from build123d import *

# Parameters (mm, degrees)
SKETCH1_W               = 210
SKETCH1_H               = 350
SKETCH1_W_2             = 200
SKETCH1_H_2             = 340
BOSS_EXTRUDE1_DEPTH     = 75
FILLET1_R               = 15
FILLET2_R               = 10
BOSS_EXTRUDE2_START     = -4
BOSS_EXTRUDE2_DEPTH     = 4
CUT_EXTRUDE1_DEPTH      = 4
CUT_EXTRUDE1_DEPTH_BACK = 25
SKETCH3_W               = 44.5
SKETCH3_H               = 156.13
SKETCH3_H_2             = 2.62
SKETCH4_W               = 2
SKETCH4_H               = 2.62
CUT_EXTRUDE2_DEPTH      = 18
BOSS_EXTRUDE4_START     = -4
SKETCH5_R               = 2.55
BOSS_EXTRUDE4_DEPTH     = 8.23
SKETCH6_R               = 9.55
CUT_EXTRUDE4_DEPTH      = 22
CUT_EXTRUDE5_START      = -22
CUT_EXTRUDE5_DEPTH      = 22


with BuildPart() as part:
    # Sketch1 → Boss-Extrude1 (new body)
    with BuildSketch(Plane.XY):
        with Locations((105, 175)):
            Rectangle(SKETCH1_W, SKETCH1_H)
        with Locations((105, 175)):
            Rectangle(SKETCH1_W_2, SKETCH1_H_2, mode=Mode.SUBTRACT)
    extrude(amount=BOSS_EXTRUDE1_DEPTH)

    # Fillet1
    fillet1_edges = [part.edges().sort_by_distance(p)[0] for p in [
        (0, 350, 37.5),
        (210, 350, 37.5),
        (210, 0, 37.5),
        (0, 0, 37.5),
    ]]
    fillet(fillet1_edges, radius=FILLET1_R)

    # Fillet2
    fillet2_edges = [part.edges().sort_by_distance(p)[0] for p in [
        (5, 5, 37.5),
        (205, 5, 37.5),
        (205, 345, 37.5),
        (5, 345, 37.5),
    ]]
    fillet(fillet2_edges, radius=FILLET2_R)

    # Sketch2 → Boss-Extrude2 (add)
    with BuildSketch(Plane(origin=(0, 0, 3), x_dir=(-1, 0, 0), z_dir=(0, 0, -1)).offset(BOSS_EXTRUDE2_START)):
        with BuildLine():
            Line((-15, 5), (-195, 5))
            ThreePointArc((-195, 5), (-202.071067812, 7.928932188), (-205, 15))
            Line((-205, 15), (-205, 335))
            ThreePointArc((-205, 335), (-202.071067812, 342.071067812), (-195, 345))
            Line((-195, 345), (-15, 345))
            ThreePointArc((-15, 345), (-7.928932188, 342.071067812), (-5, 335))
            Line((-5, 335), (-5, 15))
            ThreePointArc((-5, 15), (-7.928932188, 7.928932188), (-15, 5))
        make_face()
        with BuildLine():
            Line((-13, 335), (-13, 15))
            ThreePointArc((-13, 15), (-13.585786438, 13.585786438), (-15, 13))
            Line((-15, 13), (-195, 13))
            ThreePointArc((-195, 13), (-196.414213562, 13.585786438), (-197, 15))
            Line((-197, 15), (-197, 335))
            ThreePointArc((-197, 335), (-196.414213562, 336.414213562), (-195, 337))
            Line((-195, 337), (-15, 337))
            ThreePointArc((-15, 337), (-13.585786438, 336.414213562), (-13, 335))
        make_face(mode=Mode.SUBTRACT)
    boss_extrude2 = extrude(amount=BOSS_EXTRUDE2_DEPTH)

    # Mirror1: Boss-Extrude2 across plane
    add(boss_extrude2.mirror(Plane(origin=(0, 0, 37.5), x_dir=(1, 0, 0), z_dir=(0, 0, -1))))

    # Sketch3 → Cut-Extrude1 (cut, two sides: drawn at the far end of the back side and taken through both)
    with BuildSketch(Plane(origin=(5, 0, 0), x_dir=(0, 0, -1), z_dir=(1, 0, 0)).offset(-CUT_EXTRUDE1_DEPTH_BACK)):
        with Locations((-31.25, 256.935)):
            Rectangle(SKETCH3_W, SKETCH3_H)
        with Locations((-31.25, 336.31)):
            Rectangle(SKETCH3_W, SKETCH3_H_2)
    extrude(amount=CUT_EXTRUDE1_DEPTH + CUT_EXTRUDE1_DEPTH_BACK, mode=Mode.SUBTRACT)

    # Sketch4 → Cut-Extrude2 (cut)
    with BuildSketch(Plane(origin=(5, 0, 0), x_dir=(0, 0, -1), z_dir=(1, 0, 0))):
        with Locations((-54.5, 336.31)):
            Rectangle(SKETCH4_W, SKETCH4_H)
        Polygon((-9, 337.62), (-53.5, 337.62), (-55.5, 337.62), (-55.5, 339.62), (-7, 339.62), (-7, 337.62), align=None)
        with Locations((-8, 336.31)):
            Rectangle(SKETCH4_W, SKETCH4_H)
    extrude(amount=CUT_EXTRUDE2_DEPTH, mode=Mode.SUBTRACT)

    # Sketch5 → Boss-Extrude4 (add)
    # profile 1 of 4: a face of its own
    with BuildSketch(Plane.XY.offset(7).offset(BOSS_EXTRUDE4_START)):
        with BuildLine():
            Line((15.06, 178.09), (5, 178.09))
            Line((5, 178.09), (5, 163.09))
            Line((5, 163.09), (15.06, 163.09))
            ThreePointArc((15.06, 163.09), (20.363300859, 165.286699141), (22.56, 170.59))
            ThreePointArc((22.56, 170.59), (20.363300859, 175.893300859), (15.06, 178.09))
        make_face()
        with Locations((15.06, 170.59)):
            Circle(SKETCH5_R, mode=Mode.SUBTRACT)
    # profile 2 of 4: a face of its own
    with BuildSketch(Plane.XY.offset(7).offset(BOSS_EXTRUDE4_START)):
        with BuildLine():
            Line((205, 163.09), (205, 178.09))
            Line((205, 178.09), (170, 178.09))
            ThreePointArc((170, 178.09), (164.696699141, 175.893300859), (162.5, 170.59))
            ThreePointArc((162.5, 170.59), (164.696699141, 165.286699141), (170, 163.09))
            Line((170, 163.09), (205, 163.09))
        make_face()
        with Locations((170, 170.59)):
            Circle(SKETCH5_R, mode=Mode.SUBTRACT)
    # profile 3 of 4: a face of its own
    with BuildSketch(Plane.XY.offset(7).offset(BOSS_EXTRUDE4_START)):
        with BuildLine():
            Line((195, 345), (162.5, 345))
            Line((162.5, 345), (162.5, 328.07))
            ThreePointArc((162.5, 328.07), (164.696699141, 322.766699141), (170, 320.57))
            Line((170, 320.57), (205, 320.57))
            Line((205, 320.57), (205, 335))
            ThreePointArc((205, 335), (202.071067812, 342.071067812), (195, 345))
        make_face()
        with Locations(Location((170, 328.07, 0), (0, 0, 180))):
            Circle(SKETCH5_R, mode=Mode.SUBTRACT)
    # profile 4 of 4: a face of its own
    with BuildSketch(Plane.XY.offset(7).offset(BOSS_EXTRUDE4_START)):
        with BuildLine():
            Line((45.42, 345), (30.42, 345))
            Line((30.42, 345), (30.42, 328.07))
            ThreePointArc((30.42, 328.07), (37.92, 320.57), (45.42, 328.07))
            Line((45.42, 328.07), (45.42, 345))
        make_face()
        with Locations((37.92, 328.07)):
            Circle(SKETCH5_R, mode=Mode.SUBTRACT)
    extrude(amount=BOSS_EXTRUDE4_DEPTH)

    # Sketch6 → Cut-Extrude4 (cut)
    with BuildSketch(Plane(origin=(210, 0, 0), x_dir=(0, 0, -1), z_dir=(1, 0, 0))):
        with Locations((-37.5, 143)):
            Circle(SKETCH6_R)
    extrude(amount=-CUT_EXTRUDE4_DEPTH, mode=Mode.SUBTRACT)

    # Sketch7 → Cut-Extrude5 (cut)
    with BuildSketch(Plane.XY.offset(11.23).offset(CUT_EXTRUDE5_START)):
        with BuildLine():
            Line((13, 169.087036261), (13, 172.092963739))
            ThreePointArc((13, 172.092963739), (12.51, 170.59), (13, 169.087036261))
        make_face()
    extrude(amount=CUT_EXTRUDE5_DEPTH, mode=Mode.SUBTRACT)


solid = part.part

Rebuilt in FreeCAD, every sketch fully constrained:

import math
import FreeCAD as App
import Part
import Sketcher
from FreeCAD import Vector
Q = App.Units.Quantity


def edges_at(feature, points):
    """Names of the edges that pass closest to the given points."""
    edges = feature.Shape.Edges
    near = lambda p: min(range(len(edges)), key=lambda i: edges[i].distToShape(Part.Vertex(*p))[0])
    return sorted({f"Edge{near(p) + 1}" for p in points})


def add_polygon(sketch, points):
    """Adds a closed chain of lines whose ends are joined by coincident constraints."""
    first, n = sketch.GeometryCount, len(points)
    for a, b in zip(points, points[1:] + points[:1]):
        sketch.addGeometry(Part.LineSegment(App.Vector(*a, 0), App.Vector(*b, 0)), False)
    for i in range(n):
        sketch.addConstraint(Sketcher.Constraint("Coincident", first + i, 2, first + (i + 1) % n, 1))

doc = App.newDocument("Part")
params = doc.addObject("Spreadsheet::Sheet", "Params")
for row, (alias, value) in enumerate([
    ("sketch1_width", "210 mm"),
    ("sketch1_width2", "200 mm"),
    ("sketch1_height", "350 mm"),
    ("sketch1_height2", "340 mm"),
    ("pad1_length", "75 mm"),
    ("fillet_radius", "15 mm"),
    ("fillet2_radius", "10 mm"),
    ("sketch2_radius", "10 mm"),
    ("sketch2_radius2", "2 mm"),
    ("sketch2_width", "180 mm"),
    ("sketch2_height", "320 mm"),
    ("pad2_length", "4 mm"),
    ("sketch3_height", "44.5 mm"),
    ("sketch3_width", "158.75 mm"),
    ("pocket1_length", "4 mm"),
    ("pocket1_length2", "25 mm"),
    ("sketch4_height", "2 mm"),
    ("sketch4_height2", "44.5 mm"),
    ("sketch4_width", "2.62 mm"),
    ("pocket2_length", "18 mm"),
    ("sketch5_radius", "10 mm"),
    ("sketch5_diameter", "5.1 mm"),
    ("sketch5_radius2", "7.5 mm"),
    ("sketch5_width", "35 mm"),
    ("sketch5_width2", "10.06 mm"),
    ("pad3_length", "8.23 mm"),
    ("sketch6_diameter", "19.1 mm"),
    ("pocket3_length", "22 mm"),
    ("sketch7_radius", "2.55 mm"),
    ("pocket4_length", "22 mm"),
], start=1):
    params.set(f"A{row}", alias)
    params.set(f"B{row}", "=" + value)
    params.setAlias(f"B{row}", alias)

body = doc.addObject("PartDesign::Body", "Body")

# Sketch on XY plane
sketch1 = body.newObject("Sketcher::SketchObject", "Sketch")
sketch1.AttachmentSupport = (doc.getObject("XY_Plane"), [""])
sketch1.MapMode = "FlatFace"
add_polygon(sketch1, [(0, 350), (0, 0), (210, 0), (210, 350)])  # lines 0-3
add_polygon(sketch1, [(205, 5), (5, 5), (5, 345), (205, 345)])  # lines 4-7
sketch1.addConstraint([
    Sketcher.Constraint("Vertical", 0),
    Sketcher.Constraint("Horizontal", 1),
    Sketcher.Constraint("Vertical", 2),
    Sketcher.Constraint("Horizontal", 3),
    Sketcher.Constraint("Horizontal", 4),
    Sketcher.Constraint("Vertical", 5),
    Sketcher.Constraint("Horizontal", 6),
    Sketcher.Constraint("Vertical", 7),
    Sketcher.Constraint("Coincident", 0, 2, -1, 1),
    Sketcher.Constraint("DistanceX", 1, 1, 1, 2, Q("210 mm")),
    Sketcher.Constraint("DistanceX", 4, 2, 4, 1, Q("200 mm")),
    Sketcher.Constraint("DistanceY", 0, 2, 0, 1, Q("350 mm")),
    Sketcher.Constraint("DistanceY", 5, 1, 5, 2, Q("340 mm")),
    Sketcher.Constraint("DistanceX", -1, 1, 4, 2, Q("5 mm")),
    Sketcher.Constraint("DistanceY", -1, 1, 4, 2, Q("5 mm")),
])
sketch1.setExpression("Constraints[17]", "Params.sketch1_width")
sketch1.setExpression("Constraints[18]", "Params.sketch1_width2")
sketch1.setExpression("Constraints[19]", "Params.sketch1_height")
sketch1.setExpression("Constraints[20]", "Params.sketch1_height2")
pad1 = body.newObject("PartDesign::Pad", "Pad")
pad1.Profile = sketch1
pad1.setExpression("Length", "Params.pad1_length")
doc.recompute()

fillet = body.newObject("PartDesign::Fillet", "Fillet")
fillet.Base = (pad1, edges_at(pad1, [
    (0, 350, 37.5),
    (210, 350, 37.5),
    (210, 0, 37.5),
    (0, 0, 37.5),
]))
fillet.setExpression("Radius", "Params.fillet_radius")
doc.recompute()

fillet2 = body.newObject("PartDesign::Fillet", "Fillet001")
fillet2.Base = (fillet, edges_at(fillet, [
    (5, 5, 37.5),
    (205, 5, 37.5),
    (205, 345, 37.5),
    (5, 345, 37.5),
]))
fillet2.setExpression("Radius", "Params.fillet2_radius")

# Sketch on XY plane
sketch2 = body.newObject("Sketcher::SketchObject", "Sketch001")
sketch2.AttachmentSupport = (doc.getObject("XY_Plane"), [""])
sketch2.MapMode = "FlatFace"
sketch2.AttachmentOffset = App.Placement(Vector(0, 0, 7), App.Rotation())
sketch2.addGeometry([
    Part.LineSegment(Vector(195, 5, 0), Vector(15, 5, 0)),  # 0
    Part.ArcOfCircle(Part.Circle(Vector(15, 15, 0), Vector(0, 0, 1), 10), math.radians(180), math.radians(270)),  # 1
    Part.LineSegment(Vector(5, 15, 0), Vector(5, 335, 0)),  # 2
    Part.ArcOfCircle(Part.Circle(Vector(15, 335, 0), Vector(0, 0, 1), 10), math.radians(90), math.radians(180)),  # 3
    Part.LineSegment(Vector(15, 345, 0), Vector(195, 345, 0)),  # 4
    Part.ArcOfCircle(Part.Circle(Vector(195, 335, 0), Vector(0, 0, 1), 10), math.radians(0), math.radians(90)),  # 5
    Part.LineSegment(Vector(205, 335, 0), Vector(205, 15, 0)),  # 6
    Part.ArcOfCircle(Part.Circle(Vector(195, 15, 0), Vector(0, 0, 1), 10), math.radians(-90), math.radians(0)),  # 7
    Part.LineSegment(Vector(13, 335, 0), Vector(13, 15, 0)),  # 8
    Part.ArcOfCircle(Part.Circle(Vector(15, 15, 0), Vector(0, 0, 1), 2), math.radians(-180), math.radians(-90)),  # 9
    Part.LineSegment(Vector(15, 13, 0), Vector(195, 13, 0)),  # 10
    Part.ArcOfCircle(Part.Circle(Vector(195, 15, 0), Vector(0, 0, 1), 2), math.radians(-90), math.radians(0)),  # 11
    Part.LineSegment(Vector(197, 15, 0), Vector(197, 335, 0)),  # 12
    Part.ArcOfCircle(Part.Circle(Vector(195, 335, 0), Vector(0, 0, 1), 2), math.radians(0), math.radians(90)),  # 13
    Part.LineSegment(Vector(195, 337, 0), Vector(15, 337, 0)),  # 14
    Part.ArcOfCircle(Part.Circle(Vector(15, 335, 0), Vector(0, 0, 1), 2), math.radians(90), math.radians(180)),  # 15
], False)
sketch2.addConstraint([
    Sketcher.Constraint("Tangent", 0, 2, 1, 2),
    Sketcher.Constraint("Tangent", 1, 1, 2, 1),
    Sketcher.Constraint("Tangent", 2, 2, 3, 2),
    Sketcher.Constraint("Tangent", 3, 1, 4, 1),
    Sketcher.Constraint("Tangent", 4, 2, 5, 2),
    Sketcher.Constraint("Tangent", 5, 1, 6, 1),
    Sketcher.Constraint("Tangent", 6, 2, 7, 2),
    Sketcher.Constraint("Tangent", 7, 1, 0, 1),
    Sketcher.Constraint("Tangent", 8, 2, 9, 1),
    Sketcher.Constraint("Tangent", 9, 2, 10, 1),
    Sketcher.Constraint("Tangent", 10, 2, 11, 1),
    Sketcher.Constraint("Tangent", 11, 2, 12, 1),
    Sketcher.Constraint("Tangent", 12, 2, 13, 1),
    Sketcher.Constraint("Tangent", 13, 2, 14, 1),
    Sketcher.Constraint("Tangent", 14, 2, 15, 1),
    Sketcher.Constraint("Tangent", 15, 2, 8, 1),
    Sketcher.Constraint("Horizontal", 0),
    Sketcher.Constraint("Vertical", 2),
    Sketcher.Constraint("Horizontal", 4),
    Sketcher.Constraint("Vertical", 6),
    Sketcher.Constraint("Vertical", 8),
    Sketcher.Constraint("Horizontal", 10),
    Sketcher.Constraint("Vertical", 12),
    Sketcher.Constraint("Horizontal", 14),
    Sketcher.Constraint("Coincident", 9, 3, 1, 3),
    Sketcher.Constraint("Coincident", 11, 3, 7, 3),
    Sketcher.Constraint("Coincident", 13, 3, 5, 3),
    Sketcher.Constraint("Equal", 1, 3),
    Sketcher.Constraint("Equal", 3, 5),
    Sketcher.Constraint("Equal", 5, 7),
    Sketcher.Constraint("Equal", 13, 15),
    Sketcher.Constraint("Radius", 1, Q("10 mm")),
    Sketcher.Constraint("Radius", 9, Q("2 mm")),
    Sketcher.Constraint("DistanceX", 0, 2, 0, 1, Q("180 mm")),
    Sketcher.Constraint("DistanceY", 2, 1, 2, 2, Q("320 mm")),
    Sketcher.Constraint("DistanceX", -1, 1, 1, 3, Q("15 mm")),
    Sketcher.Constraint("DistanceY", -1, 1, 1, 3, Q("15 mm")),
])
sketch2.setExpression("Constraints[31]", "Params.sketch2_radius")
sketch2.setExpression("Constraints[32]", "Params.sketch2_radius2")
sketch2.setExpression("Constraints[33]", "Params.sketch2_width")
sketch2.setExpression("Constraints[34]", "Params.sketch2_height")
pad2 = body.newObject("PartDesign::Pad", "Pad001")
pad2.Profile = sketch2
pad2.setExpression("Length", "Params.pad2_length")
pad2.Reversed = True
doc.recompute()

datumplane = body.newObject("PartDesign::Plane", "DatumPlane")
datumplane.AttachmentSupport = (doc.getObject("XY_Plane"), [""])
datumplane.MapMode = "FlatFace"
datumplane.AttachmentOffset = App.Placement(Vector(0, 0, 37.5), App.Rotation())
mirrored = body.newObject("PartDesign::Mirrored", "Mirrored")
mirrored.Originals = [pad2]
mirrored.MirrorPlane = (datumplane, [""])
body.Tip = mirrored

# Sketch on YZ plane
sketch3 = body.newObject("Sketcher::SketchObject", "Sketch002")
sketch3.AttachmentSupport = (doc.getObject("YZ_Plane"), [""])
sketch3.MapMode = "FlatFace"
sketch3.AttachmentOffset = App.Placement(Vector(0, 0, 5), App.Rotation())
add_polygon(sketch3, [(178.87, 53.5), (178.87, 9), (337.62, 9), (337.62, 53.5)])  # lines 0-3
sketch3.addConstraint([
    Sketcher.Constraint("Vertical", 0),
    Sketcher.Constraint("Horizontal", 1),
    Sketcher.Constraint("Vertical", 2),
    Sketcher.Constraint("Horizontal", 3),
    Sketcher.Constraint("DistanceY", 0, 2, 0, 1, Q("44.5 mm")),
    Sketcher.Constraint("DistanceY", -1, 1, 0, 2, Q("9 mm")),
    Sketcher.Constraint("DistanceX", 1, 1, 1, 2, Q("158.75 mm")),
    Sketcher.Constraint("DistanceX", -1, 1, 0, 2, Q("178.87 mm")),
])
sketch3.setExpression("Constraints[8]", "Params.sketch3_height")
sketch3.setExpression("Constraints[10]", "Params.sketch3_width")
pocket1 = body.newObject("PartDesign::Pocket", "Pocket")
pocket1.Profile = sketch3
pocket1.Type = "TwoLengths"
pocket1.setExpression("Length", "Params.pocket1_length")
pocket1.setExpression("Length2", "Params.pocket1_length2")
pocket1.Reversed = True

# Sketch on YZ plane
sketch4 = body.newObject("Sketcher::SketchObject", "Sketch003")
sketch4.AttachmentSupport = (doc.getObject("YZ_Plane"), [""])
sketch4.MapMode = "FlatFace"
sketch4.AttachmentOffset = App.Placement(Vector(0, 0, 5), App.Rotation())
add_polygon(sketch4, [(335, 55.5), (335, 53.5), (337.62, 53.5), (337.62, 9), (335, 9), (335, 7), (339.62, 7), (339.62, 55.5)])  # lines 0-7
sketch4.addConstraint([
    Sketcher.Constraint("Vertical", 0),
    Sketcher.Constraint("Horizontal", 1),
    Sketcher.Constraint("Vertical", 2),
    Sketcher.Constraint("Horizontal", 3),
    Sketcher.Constraint("Vertical", 4),
    Sketcher.Constraint("Horizontal", 5),
    Sketcher.Constraint("Vertical", 6),
    Sketcher.Constraint("Horizontal", 7),
    Sketcher.Constraint("Vertical", 0, 2, 3, 2),
    Sketcher.Constraint("Equal", 0, 4),
    Sketcher.Constraint("DistanceY", 0, 2, 0, 1, Q("2 mm")),
    Sketcher.Constraint("DistanceY", 2, 2, 2, 1, Q("44.5 mm")),
    Sketcher.Constraint("DistanceX", -1, 1, 0, 2, Q("335 mm")),
    Sketcher.Constraint("DistanceY", -1, 1, 2, 2, Q("9 mm")),
    Sketcher.Constraint("DistanceX", 2, 2, 5, 2, Q("2 mm")),
    Sketcher.Constraint("DistanceX", 1, 1, 1, 2, Q("2.62 mm")),
])
sketch4.setExpression("Constraints[18]", "Params.sketch4_height")
sketch4.setExpression("Constraints[19]", "Params.sketch4_height2")
sketch4.setExpression("Constraints[23]", "Params.sketch4_width")
pocket2 = body.newObject("PartDesign::Pocket", "Pocket001")
pocket2.Profile = sketch4
pocket2.setExpression("Length", "Params.pocket2_length")
pocket2.Reversed = True

# Sketch on XY plane
sketch5 = body.newObject("Sketcher::SketchObject", "Sketch004")
sketch5.AttachmentSupport = (doc.getObject("XY_Plane"), [""])
sketch5.MapMode = "FlatFace"
sketch5.AttachmentOffset = App.Placement(Vector(0, 0, 3), App.Rotation())
sketch5.addGeometry([
    Part.LineSegment(Vector(15.06, 178.09, 0), Vector(5, 178.09, 0)),  # 0
    Part.LineSegment(Vector(5, 178.09, 0), Vector(5, 163.09, 0)),  # 1
    Part.LineSegment(Vector(5, 163.09, 0), Vector(15.06, 163.09, 0)),  # 2
    Part.ArcOfCircle(Part.Circle(Vector(15.06, 170.59, 0), Vector(0, 0, 1), 7.5), math.radians(-90), math.radians(0)),  # 3
    Part.ArcOfCircle(Part.Circle(Vector(15.06, 170.59, 0), Vector(0, 0, 1), 7.5), math.radians(0), math.radians(90)),  # 4
    Part.Circle(Vector(15.06, 170.59, 0), Vector(0, 0, 1), 2.55),  # 5
    Part.LineSegment(Vector(205, 163.09, 0), Vector(205, 178.09, 0)),  # 6
    Part.LineSegment(Vector(205, 178.09, 0), Vector(170, 178.09, 0)),  # 7
    Part.ArcOfCircle(Part.Circle(Vector(170, 170.59, 0), Vector(0, 0, 1), 7.5), math.radians(90), math.radians(180)),  # 8
    Part.ArcOfCircle(Part.Circle(Vector(170, 170.59, 0), Vector(0, 0, 1), 7.5), math.radians(180), math.radians(270)),  # 9
    Part.LineSegment(Vector(170, 163.09, 0), Vector(205, 163.09, 0)),  # 10
    Part.Circle(Vector(170, 170.59, 0), Vector(0, 0, 1), 2.55),  # 11
    Part.LineSegment(Vector(195, 345, 0), Vector(162.5, 345, 0)),  # 12
    Part.LineSegment(Vector(162.5, 345, 0), Vector(162.5, 328.07, 0)),  # 13
    Part.ArcOfCircle(Part.Circle(Vector(170, 328.07, 0), Vector(0, 0, 1), 7.5), math.radians(180), math.radians(270)),  # 14
    Part.LineSegment(Vector(170, 320.57, 0), Vector(205, 320.57, 0)),  # 15
    Part.LineSegment(Vector(205, 320.57, 0), Vector(205, 335, 0)),  # 16
    Part.ArcOfCircle(Part.Circle(Vector(195, 335, 0), Vector(0, 0, 1), 10), math.radians(0), math.radians(90)),  # 17
    Part.Circle(Vector(170, 328.07, 0), Vector(0, 0, 1), 2.55),  # 18
    Part.LineSegment(Vector(45.42, 345, 0), Vector(30.42, 345, 0)),  # 19
    Part.LineSegment(Vector(30.42, 345, 0), Vector(30.42, 328.07, 0)),  # 20
    Part.ArcOfCircle(Part.Circle(Vector(37.92, 328.07, 0), Vector(0, 0, 1), 7.5), math.radians(180), math.radians(360)),  # 21
    Part.LineSegment(Vector(45.42, 328.07, 0), Vector(45.42, 345, 0)),  # 22
    Part.Circle(Vector(37.92, 328.07, 0), Vector(0, 0, 1), 2.55),  # 23
], False)
sketch5.addConstraint([
    Sketcher.Constraint("Coincident", 0, 2, 1, 1),
    Sketcher.Constraint("Coincident", 1, 2, 2, 1),
    Sketcher.Constraint("Tangent", 2, 2, 3, 1),
    Sketcher.Constraint("Tangent", 3, 2, 4, 1),
    Sketcher.Constraint("Tangent", 4, 2, 0, 1),
    Sketcher.Constraint("Coincident", 6, 2, 7, 1),
    Sketcher.Constraint("Tangent", 7, 2, 8, 1),
    Sketcher.Constraint("Tangent", 8, 2, 9, 1),
    Sketcher.Constraint("Tangent", 9, 2, 10, 1),
    Sketcher.Constraint("Coincident", 10, 2, 6, 1),
    Sketcher.Constraint("Coincident", 12, 2, 13, 1),
    Sketcher.Constraint("Tangent", 13, 2, 14, 1),
    Sketcher.Constraint("Tangent", 14, 2, 15, 1),
    Sketcher.Constraint("Coincident", 15, 2, 16, 1),
    Sketcher.Constraint("Tangent", 16, 2, 17, 1),
    Sketcher.Constraint("Tangent", 17, 2, 12, 1),
    Sketcher.Constraint("Coincident", 19, 2, 20, 1),
    Sketcher.Constraint("Tangent", 20, 2, 21, 1),
    Sketcher.Constraint("Tangent", 21, 2, 22, 1),
    Sketcher.Constraint("Coincident", 22, 2, 19, 1),
    Sketcher.Constraint("Horizontal", 0),
    Sketcher.Constraint("Vertical", 1),
    Sketcher.Constraint("Horizontal", 2),
    Sketcher.Constraint("Vertical", 6),
    Sketcher.Constraint("Horizontal", 7),
    Sketcher.Constraint("Horizontal", 10),
    Sketcher.Constraint("Horizontal", 12),
    Sketcher.Constraint("Vertical", 13),
    Sketcher.Constraint("Horizontal", 15),
    Sketcher.Constraint("Vertical", 16),
    Sketcher.Constraint("Horizontal", 19),
    Sketcher.Constraint("Vertical", 20),
    Sketcher.Constraint("Vertical", 22),
    Sketcher.Constraint("Coincident", 5, 3, 3, 3),
    Sketcher.Constraint("Coincident", 11, 3, 8, 3),
    Sketcher.Constraint("Coincident", 18, 3, 14, 3),
    Sketcher.Constraint("Coincident", 23, 3, 21, 3),
    Sketcher.Constraint("Equal", 3, 4),
    Sketcher.Constraint("Equal", 4, 8),
    Sketcher.Constraint("Equal", 8, 9),
    Sketcher.Constraint("Equal", 5, 11),
    Sketcher.Constraint("Equal", 9, 14),
    Sketcher.Constraint("Equal", 11, 18),
    Sketcher.Constraint("Equal", 14, 21),
    Sketcher.Constraint("Equal", 18, 23),
    Sketcher.Constraint("Horizontal", 5, 3, 8, 3),
    Sketcher.Constraint("Horizontal", 18, 3, 21, 3),
    Sketcher.Constraint("Horizontal", 11, 3, 3, 2),
    Sketcher.Constraint("Horizontal", 3, 2, 8, 2),
    Sketcher.Constraint("Horizontal", 17, 2, 19, 2),
    Sketcher.Constraint("Vertical", 11, 3, 14, 3),
    Sketcher.Constraint("Vertical", 10, 2, 15, 2),
    Sketcher.Constraint("Radius", 17, Q("10 mm")),
    Sketcher.Constraint("Diameter", 5, Q("5.1 mm")),
    Sketcher.Constraint("Radius", 3, Q("7.5 mm")),
    Sketcher.Constraint("DistanceX", 7, 2, 7, 1, Q("35 mm")),
    Sketcher.Constraint("DistanceX", -1, 1, 8, 3, Q("170 mm")),
    Sketcher.Constraint("DistanceY", -1, 1, 17, 3, Q("335 mm")),
    Sketcher.Constraint("DistanceX", -1, 1, 0, 2, Q("5 mm")),
    Sketcher.Constraint("DistanceX", 0, 2, 0, 1, Q("10.06 mm")),
    Sketcher.Constraint("DistanceY", 13, 2, 13, 1, Q("16.93 mm")),
    Sketcher.Constraint("DistanceY", -1, 1, 3, 3, Q("170.59 mm")),
    Sketcher.Constraint("DistanceX", -1, 1, 21, 3, Q("37.92 mm")),
])
sketch5.setExpression("Constraints[52]", "Params.sketch5_radius")
sketch5.setExpression("Constraints[53]", "Params.sketch5_diameter")
sketch5.setExpression("Constraints[54]", "Params.sketch5_radius2")
sketch5.setExpression("Constraints[55]", "Params.sketch5_width")
sketch5.setExpression("Constraints[59]", "Params.sketch5_width2")
pad3 = body.newObject("PartDesign::Pad", "Pad002")
pad3.Profile = sketch5
pad3.setExpression("Length", "Params.pad3_length")

# Sketch on YZ plane
sketch6 = body.newObject("Sketcher::SketchObject", "Sketch005")
sketch6.AttachmentSupport = (doc.getObject("YZ_Plane"), [""])
sketch6.MapMode = "FlatFace"
sketch6.AttachmentOffset = App.Placement(Vector(0, 0, 210), App.Rotation())
sketch6.addGeometry(Part.Circle(Vector(143, 37.5, 0), Vector(0, 0, 1), 9.55), False)
sketch6.addConstraint([
    Sketcher.Constraint("Diameter", 0, Q("19.1 mm")),
    Sketcher.Constraint("DistanceX", -1, 1, 0, 3, Q("143 mm")),
    Sketcher.Constraint("DistanceY", -1, 1, 0, 3, Q("37.5 mm")),
])
sketch6.setExpression("Constraints[0]", "Params.sketch6_diameter")
pocket3 = body.newObject("PartDesign::Pocket", "Pocket002")
pocket3.Profile = sketch6
pocket3.setExpression("Length", "Params.pocket3_length")

# Sketch on XY plane
sketch7 = body.newObject("Sketcher::SketchObject", "Sketch006")
sketch7.AttachmentSupport = (doc.getObject("XY_Plane"), [""])
sketch7.MapMode = "FlatFace"
sketch7.AttachmentOffset = App.Placement(Vector(0, 0, -10.77), App.Rotation())
sketch7.addGeometry([
    Part.LineSegment(Vector(13, 169.087036, 0), Vector(13, 172.092964, 0)),
    Part.ArcOfCircle(Part.Circle(Vector(15.06, 170.59, 0), Vector(0, 0, 1), 2.55), math.radians(143.885732), math.radians(216.114268)),
], False)
sketch7.addConstraint([
    Sketcher.Constraint("Coincident", 0, 1, 1, 2),
    Sketcher.Constraint("Coincident", 1, 1, 0, 2),
    Sketcher.Constraint("Vertical", 0),
    Sketcher.Constraint("Radius", 1, Q("2.55 mm")),
    Sketcher.Constraint("DistanceX", -1, 1, 0, 1, Q("13 mm")),
    Sketcher.Constraint("DistanceX", -1, 1, 1, 3, Q("15.06 mm")),
    Sketcher.Constraint("DistanceY", -1, 1, 1, 3, Q("170.59 mm")),
])
sketch7.setExpression("Constraints[3]", "Params.sketch7_radius")
pocket4 = body.newObject("PartDesign::Pocket", "Pocket003")
pocket4.Profile = sketch7
pocket4.setExpression("Length", "Params.pocket4_length")
pocket4.Reversed = True

doc.recompute()
